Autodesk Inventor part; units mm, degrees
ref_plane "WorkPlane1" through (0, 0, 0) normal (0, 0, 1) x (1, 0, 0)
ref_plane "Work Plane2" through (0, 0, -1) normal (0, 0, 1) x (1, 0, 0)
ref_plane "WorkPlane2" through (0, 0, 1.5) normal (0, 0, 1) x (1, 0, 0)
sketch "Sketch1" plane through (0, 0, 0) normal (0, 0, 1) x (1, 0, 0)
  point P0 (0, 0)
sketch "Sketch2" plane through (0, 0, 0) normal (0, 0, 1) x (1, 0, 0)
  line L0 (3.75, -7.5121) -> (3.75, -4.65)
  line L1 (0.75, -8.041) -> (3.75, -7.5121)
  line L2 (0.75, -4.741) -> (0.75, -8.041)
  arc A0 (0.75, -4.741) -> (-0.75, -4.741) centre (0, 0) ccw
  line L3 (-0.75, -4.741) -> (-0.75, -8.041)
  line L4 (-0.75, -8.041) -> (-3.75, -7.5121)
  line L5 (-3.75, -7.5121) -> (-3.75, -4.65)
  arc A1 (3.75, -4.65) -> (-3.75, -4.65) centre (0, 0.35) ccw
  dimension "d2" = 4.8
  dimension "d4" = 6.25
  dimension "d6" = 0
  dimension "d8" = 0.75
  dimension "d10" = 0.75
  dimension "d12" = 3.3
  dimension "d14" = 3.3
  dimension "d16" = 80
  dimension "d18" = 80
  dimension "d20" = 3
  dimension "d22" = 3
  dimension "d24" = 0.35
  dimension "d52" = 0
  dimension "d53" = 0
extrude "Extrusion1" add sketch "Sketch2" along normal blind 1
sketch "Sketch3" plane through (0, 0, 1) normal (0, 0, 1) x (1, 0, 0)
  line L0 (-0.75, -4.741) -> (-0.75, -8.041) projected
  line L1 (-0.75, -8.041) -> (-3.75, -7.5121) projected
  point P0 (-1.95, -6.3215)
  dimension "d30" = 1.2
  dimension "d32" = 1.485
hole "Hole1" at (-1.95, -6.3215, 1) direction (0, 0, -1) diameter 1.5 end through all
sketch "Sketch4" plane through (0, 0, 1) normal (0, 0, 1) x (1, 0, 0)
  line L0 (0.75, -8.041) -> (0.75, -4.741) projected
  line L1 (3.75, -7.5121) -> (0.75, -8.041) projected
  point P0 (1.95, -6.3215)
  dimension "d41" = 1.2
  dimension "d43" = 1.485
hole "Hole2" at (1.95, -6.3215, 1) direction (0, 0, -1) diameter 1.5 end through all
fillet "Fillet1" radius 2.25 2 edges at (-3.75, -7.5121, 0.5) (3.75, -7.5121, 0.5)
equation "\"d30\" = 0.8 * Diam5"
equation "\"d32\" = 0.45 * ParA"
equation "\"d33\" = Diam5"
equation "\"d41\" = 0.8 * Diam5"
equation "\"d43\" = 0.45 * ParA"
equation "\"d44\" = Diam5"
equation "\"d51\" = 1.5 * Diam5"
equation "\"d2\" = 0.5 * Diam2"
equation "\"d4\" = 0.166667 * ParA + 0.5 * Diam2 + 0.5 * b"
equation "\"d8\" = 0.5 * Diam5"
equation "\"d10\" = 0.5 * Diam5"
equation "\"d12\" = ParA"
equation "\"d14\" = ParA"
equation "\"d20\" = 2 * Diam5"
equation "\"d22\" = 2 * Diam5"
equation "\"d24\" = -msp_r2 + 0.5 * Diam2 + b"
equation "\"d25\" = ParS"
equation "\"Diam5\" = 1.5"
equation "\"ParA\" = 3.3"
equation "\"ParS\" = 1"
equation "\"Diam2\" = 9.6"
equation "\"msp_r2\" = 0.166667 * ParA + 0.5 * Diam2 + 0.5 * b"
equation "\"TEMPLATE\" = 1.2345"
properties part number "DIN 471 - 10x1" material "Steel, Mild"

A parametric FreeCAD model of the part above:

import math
import FreeCAD as App
import Part
import Sketcher
Q = App.Units.Quantity


def edges_at(feature, points):
    """Names of the edges that pass closest to the given points."""
    edges = feature.Shape.Edges
    near = lambda p: min(range(len(edges)), key=lambda i: edges[i].distToShape(Part.Vertex(*p))[0])
    return sorted({f"Edge{near(p) + 1}" for p in points})

doc = App.newDocument("Part")
body = doc.addObject("PartDesign::Body", "Body")

# Sketch on XY plane
sketch1 = body.newObject("Sketcher::SketchObject", "Sketch")
sketch1.AttachmentSupport = (doc.getObject("XY_Plane"), [""])
sketch1.MapMode = "FlatFace"
sketch1.addGeometry(Part.LineSegment(App.Vector(0.8, -8, 0), App.Vector(3.8, -7.5, 0)), False)
sketch1.addGeometry(Part.LineSegment(App.Vector(3.8, -7.5, 0), App.Vector(3.8, -4.7, 0)), False)
sketch1.addGeometry(Part.ArcOfCircle(Part.Circle(App.Vector(0, 0.3, 0), App.Vector(0, 0, 1), 6.2), math.radians(-53), math.radians(233)), False)
sketch1.addGeometry(Part.LineSegment(App.Vector(-3.8, -4.7, 0), App.Vector(-3.8, -7.5, 0)), False)
sketch1.addGeometry(Part.LineSegment(App.Vector(-3.8, -7.5, 0), App.Vector(-0.8, -8, 0)), False)
sketch1.addGeometry(Part.LineSegment(App.Vector(-0.8, -8, 0), App.Vector(-0.8, -4.7, 0)), False)
sketch1.addGeometry(Part.ArcOfCircle(Part.Circle(App.Vector(0, 0, 0), App.Vector(0, 0, 1), 4.8), math.radians(-81), math.radians(261)), False)
sketch1.addGeometry(Part.LineSegment(App.Vector(0.8, -4.7, 0), App.Vector(0.8, -8, 0)), False)
sketch1.addConstraint(Sketcher.Constraint("Coincident", 0, 2, 1, 1))
sketch1.addConstraint(Sketcher.Constraint("Coincident", 1, 2, 2, 1))
sketch1.addConstraint(Sketcher.Constraint("Coincident", 2, 2, 3, 1))
sketch1.addConstraint(Sketcher.Constraint("Coincident", 3, 2, 4, 1))
sketch1.addConstraint(Sketcher.Constraint("Coincident", 4, 2, 5, 1))
sketch1.addConstraint(Sketcher.Constraint("Coincident", 5, 2, 6, 2))
sketch1.addConstraint(Sketcher.Constraint("Coincident", 6, 1, 7, 1))
sketch1.addConstraint(Sketcher.Constraint("Coincident", 7, 2, 0, 1))
sketch1.addConstraint(Sketcher.Constraint("Vertical", 1))
sketch1.addConstraint(Sketcher.Constraint("Vertical", 3))
sketch1.addConstraint(Sketcher.Constraint("Vertical", 5))
sketch1.addConstraint(Sketcher.Constraint("Vertical", 7))
sketch1.addConstraint(Sketcher.Constraint("Coincident", 6, 3, -1, 1))
sketch1.addConstraint(Sketcher.Constraint("Symmetric", 1, 2, 2, 2, -2))
sketch1.addConstraint(Sketcher.Constraint("Symmetric", 4, 2, 7, 2, -2))
sketch1.addConstraint(Sketcher.Constraint("Horizontal", 0, 2, 3, 2))
sketch1.addConstraint(Sketcher.Constraint("Radius", 6, Q("4.8 mm")))
sketch1.addConstraint(Sketcher.Constraint("Radius", 2, Q("6.25 mm")))
sketch1.addConstraint(Sketcher.Constraint("DistanceY", 5, 1, 5, 2, Q("3.3 mm")))
sketch1.addConstraint(Sketcher.Constraint("DistanceX", 3, 2, 4, 2, Q("3 mm")))
sketch1.addConstraint(Sketcher.Constraint("DistanceY", -1, 1, 2, 3, Q("0.35 mm")))
sketch1.addConstraint(Sketcher.Constraint("DistanceX", 4, 2, -1, 1, Q("0.75 mm")))
sketch1.addConstraint(Sketcher.Constraint("DistanceY", 1, 1, 1, 2, Q("2.862 mm")))
pad1 = body.newObject("PartDesign::Pad", "Pad")
pad1.Profile = sketch1
pad1.Length = 1

# Sketch on XY plane
sketch2 = body.newObject("Sketcher::SketchObject", "Sketch001")
sketch2.AttachmentSupport = (doc.getObject("XY_Plane"), [""])
sketch2.MapMode = "FlatFace"
sketch2.AttachmentOffset = App.Placement(App.Vector(0, 0, 1), App.Rotation())
sketch2.addGeometry(Part.Circle(App.Vector(-1.9, -6.3, 0), App.Vector(0, 0, 1), 0.8), False)
sketch2.addConstraint(Sketcher.Constraint("Diameter", 0, Q("1.5 mm")))
sketch2.addConstraint(Sketcher.Constraint("DistanceX", 0, 3, -1, 1, Q("1.95 mm")))
sketch2.addConstraint(Sketcher.Constraint("DistanceY", 0, 3, -1, 1, Q("6.3215 mm")))
doc.recompute()
hole = body.newObject("PartDesign::Hole", "Hole")
hole.Profile = sketch2
hole.ThreadType = "None"
hole.Diameter = 1.5
hole.DepthType = "ThroughAll"

# Sketch on XY plane
sketch3 = body.newObject("Sketcher::SketchObject", "Sketch002")
sketch3.AttachmentSupport = (doc.getObject("XY_Plane"), [""])
sketch3.MapMode = "FlatFace"
sketch3.AttachmentOffset = App.Placement(App.Vector(0, 0, 1), App.Rotation())
sketch3.addGeometry(Part.Circle(App.Vector(1.9, -6.3, 0), App.Vector(0, 0, 1), 0.8), False)
sketch3.addConstraint(Sketcher.Constraint("Diameter", 0, Q("1.5 mm")))
sketch3.addConstraint(Sketcher.Constraint("DistanceX", -1, 1, 0, 3, Q("1.95 mm")))
sketch3.addConstraint(Sketcher.Constraint("DistanceY", 0, 3, -1, 1, Q("6.3215 mm")))
doc.recompute()
hole2 = body.newObject("PartDesign::Hole", "Hole001")
hole2.Profile = sketch3
hole2.ThreadType = "None"
hole2.Diameter = 1.5
hole2.DepthType = "ThroughAll"
doc.recompute()

fillet = body.newObject("PartDesign::Fillet", "Fillet")
fillet.Base = (hole2, edges_at(hole2, [(-3.75, -7.512, 0.5), (3.75, -7.512, 0.5)]))
fillet.Radius = 2.25

doc.recompute()
